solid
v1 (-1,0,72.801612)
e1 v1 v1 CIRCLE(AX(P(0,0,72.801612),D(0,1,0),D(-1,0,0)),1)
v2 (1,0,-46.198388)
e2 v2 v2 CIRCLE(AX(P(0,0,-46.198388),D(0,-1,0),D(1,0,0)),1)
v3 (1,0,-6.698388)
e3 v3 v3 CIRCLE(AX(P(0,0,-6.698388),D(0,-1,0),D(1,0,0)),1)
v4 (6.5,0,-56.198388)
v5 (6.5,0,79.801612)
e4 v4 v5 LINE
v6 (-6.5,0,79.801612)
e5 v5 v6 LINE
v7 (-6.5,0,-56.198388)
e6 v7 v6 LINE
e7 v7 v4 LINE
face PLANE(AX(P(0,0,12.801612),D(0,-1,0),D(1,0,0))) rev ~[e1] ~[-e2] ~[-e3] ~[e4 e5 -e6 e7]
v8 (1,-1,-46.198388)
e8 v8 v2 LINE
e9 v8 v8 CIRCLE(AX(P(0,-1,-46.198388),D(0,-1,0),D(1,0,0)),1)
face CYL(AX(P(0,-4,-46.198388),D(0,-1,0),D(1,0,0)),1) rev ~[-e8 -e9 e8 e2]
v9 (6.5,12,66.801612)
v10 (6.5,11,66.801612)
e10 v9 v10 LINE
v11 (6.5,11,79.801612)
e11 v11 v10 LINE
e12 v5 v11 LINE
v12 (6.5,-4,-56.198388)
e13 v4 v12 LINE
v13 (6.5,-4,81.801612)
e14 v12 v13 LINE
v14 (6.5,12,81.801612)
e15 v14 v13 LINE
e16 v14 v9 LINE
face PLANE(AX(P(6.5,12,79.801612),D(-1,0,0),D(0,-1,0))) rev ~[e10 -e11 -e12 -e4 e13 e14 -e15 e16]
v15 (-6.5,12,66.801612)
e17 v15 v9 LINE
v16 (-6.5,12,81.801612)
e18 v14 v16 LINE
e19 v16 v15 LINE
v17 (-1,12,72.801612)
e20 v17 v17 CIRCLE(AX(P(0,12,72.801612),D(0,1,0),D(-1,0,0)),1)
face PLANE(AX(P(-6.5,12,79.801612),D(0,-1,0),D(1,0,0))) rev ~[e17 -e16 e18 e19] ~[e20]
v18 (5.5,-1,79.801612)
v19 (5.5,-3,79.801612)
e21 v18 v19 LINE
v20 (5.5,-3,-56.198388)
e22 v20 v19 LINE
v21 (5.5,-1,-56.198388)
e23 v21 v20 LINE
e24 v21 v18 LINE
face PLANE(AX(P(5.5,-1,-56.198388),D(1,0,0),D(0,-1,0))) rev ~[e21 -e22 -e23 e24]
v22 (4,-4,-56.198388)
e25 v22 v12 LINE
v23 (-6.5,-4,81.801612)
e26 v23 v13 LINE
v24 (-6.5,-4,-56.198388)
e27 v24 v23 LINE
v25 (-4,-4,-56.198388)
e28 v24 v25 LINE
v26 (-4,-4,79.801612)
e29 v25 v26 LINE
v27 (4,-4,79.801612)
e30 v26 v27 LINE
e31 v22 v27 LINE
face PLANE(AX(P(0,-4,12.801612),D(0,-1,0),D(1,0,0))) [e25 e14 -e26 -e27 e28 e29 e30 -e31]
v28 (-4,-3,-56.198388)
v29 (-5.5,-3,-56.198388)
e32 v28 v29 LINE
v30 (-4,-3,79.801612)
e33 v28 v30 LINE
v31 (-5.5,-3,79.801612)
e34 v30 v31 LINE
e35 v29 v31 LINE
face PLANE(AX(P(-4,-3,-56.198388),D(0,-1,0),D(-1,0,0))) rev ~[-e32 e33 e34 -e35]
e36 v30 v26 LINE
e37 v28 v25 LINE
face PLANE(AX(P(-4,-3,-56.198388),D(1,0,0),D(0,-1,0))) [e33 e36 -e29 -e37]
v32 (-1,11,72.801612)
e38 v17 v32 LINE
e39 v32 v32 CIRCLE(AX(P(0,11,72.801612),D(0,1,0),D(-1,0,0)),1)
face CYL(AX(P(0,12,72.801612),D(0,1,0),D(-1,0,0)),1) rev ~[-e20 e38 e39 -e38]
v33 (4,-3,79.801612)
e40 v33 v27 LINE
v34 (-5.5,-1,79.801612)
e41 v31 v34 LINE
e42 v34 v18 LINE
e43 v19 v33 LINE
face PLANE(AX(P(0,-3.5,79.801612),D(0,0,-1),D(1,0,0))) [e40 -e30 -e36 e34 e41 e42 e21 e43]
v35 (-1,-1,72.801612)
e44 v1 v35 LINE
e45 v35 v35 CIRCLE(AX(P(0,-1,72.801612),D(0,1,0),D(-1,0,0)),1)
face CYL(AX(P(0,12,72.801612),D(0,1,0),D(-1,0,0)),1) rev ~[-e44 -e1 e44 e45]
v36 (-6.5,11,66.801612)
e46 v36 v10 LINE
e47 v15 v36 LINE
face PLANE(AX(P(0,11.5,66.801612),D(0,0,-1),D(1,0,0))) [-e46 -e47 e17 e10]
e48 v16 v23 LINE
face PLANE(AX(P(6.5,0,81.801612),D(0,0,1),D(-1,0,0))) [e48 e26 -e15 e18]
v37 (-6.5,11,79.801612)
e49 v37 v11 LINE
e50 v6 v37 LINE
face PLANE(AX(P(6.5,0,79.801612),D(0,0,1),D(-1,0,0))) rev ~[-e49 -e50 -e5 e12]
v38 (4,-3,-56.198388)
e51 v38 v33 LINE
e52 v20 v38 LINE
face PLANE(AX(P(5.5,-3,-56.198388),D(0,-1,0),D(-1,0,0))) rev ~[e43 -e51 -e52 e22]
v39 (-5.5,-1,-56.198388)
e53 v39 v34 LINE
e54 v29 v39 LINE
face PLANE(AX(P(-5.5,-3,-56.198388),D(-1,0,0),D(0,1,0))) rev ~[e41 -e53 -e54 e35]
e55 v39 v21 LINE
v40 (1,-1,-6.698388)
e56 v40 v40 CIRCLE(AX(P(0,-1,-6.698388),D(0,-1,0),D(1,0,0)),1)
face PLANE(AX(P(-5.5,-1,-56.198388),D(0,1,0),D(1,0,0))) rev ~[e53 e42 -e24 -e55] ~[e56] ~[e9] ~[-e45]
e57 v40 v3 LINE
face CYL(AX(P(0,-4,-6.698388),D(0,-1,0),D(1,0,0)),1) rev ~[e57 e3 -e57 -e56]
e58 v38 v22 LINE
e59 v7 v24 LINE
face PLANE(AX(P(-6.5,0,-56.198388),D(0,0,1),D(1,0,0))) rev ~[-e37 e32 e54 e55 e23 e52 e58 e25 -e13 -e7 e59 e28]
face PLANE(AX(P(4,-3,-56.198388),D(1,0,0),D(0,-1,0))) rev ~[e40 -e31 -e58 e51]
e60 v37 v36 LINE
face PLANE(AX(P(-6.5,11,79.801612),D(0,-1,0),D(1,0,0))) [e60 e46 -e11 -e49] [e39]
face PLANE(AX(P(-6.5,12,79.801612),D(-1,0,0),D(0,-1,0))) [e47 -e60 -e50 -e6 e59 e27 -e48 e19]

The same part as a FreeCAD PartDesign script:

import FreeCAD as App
import Part
import Sketcher
Q = App.Units.Quantity

doc = App.newDocument("Part")
body = doc.addObject("PartDesign::Body", "Body")

sketch1 = body.newObject("Sketcher::SketchObject", "Sketch")
sketch1.AttachmentSupport = (doc.getObject("XZ_Plane"), [""])
sketch1.MapMode = "FlatFace"
sketch1.addGeometry(Part.LineSegment(App.Vector(-6, 82, 0), App.Vector(-6, -56, 0)), False)
sketch1.addGeometry(Part.LineSegment(App.Vector(-6, -56, 0), App.Vector(6, -56, 0)), False)
sketch1.addGeometry(Part.LineSegment(App.Vector(6, -56, 0), App.Vector(6, 82, 0)), False)
sketch1.addGeometry(Part.LineSegment(App.Vector(6, 82, 0), App.Vector(-6, 82, 0)), False)
sketch1.addConstraint(Sketcher.Constraint("Coincident", 0, 2, 1, 1))
sketch1.addConstraint(Sketcher.Constraint("Coincident", 1, 2, 2, 1))
sketch1.addConstraint(Sketcher.Constraint("Coincident", 2, 2, 3, 1))
sketch1.addConstraint(Sketcher.Constraint("Coincident", 3, 2, 0, 1))
sketch1.addConstraint(Sketcher.Constraint("Vertical", 0))
sketch1.addConstraint(Sketcher.Constraint("Horizontal", 1))
sketch1.addConstraint(Sketcher.Constraint("Vertical", 2))
sketch1.addConstraint(Sketcher.Constraint("Horizontal", 3))
sketch1.addConstraint(Sketcher.Constraint("DistanceX", 1, 1, 1, 2, Q("13 mm")))
sketch1.addConstraint(Sketcher.Constraint("DistanceY", 0, 2, 0, 1, Q("138 mm")))
sketch1.addConstraint(Sketcher.Constraint("DistanceX", 0, 2, -1, 1, Q("6.5 mm")))
sketch1.addConstraint(Sketcher.Constraint("DistanceY", 0, 2, -1, 1, Q("56.198388 mm")))
pad1 = body.newObject("PartDesign::Pad", "Pad")
pad1.Profile = sketch1
pad1.Length = 4

sketch2 = body.newObject("Sketcher::SketchObject", "Sketch001")
sketch2.AttachmentSupport = (doc.getObject("XY_Plane"), [""])
sketch2.MapMode = "FlatFace"
sketch2.AttachmentOffset = App.Placement(App.Vector(0, 0, -56.198388), App.Rotation())
sketch2.addGeometry(Part.LineSegment(App.Vector(-4, -4, 0), App.Vector(-4, -3, 0)), False)
sketch2.addGeometry(Part.LineSegment(App.Vector(-4, -3, 0), App.Vector(-5.5, -3, 0)), False)
sketch2.addGeometry(Part.LineSegment(App.Vector(-5.5, -3, 0), App.Vector(-5.5, -1, 0)), False)
sketch2.addGeometry(Part.LineSegment(App.Vector(-5.5, -1, 0), App.Vector(5.5, -1, 0)), False)
sketch2.addGeometry(Part.LineSegment(App.Vector(5.5, -1, 0), App.Vector(5.5, -3, 0)), False)
sketch2.addGeometry(Part.LineSegment(App.Vector(5.5, -3, 0), App.Vector(4, -3, 0)), False)
sketch2.addGeometry(Part.LineSegment(App.Vector(4, -3, 0), App.Vector(4, -4, 0)), False)
sketch2.addGeometry(Part.LineSegment(App.Vector(4, -4, 0), App.Vector(-4, -4, 0)), False)
sketch2.addConstraint(Sketcher.Constraint("Coincident", 0, 2, 1, 1))
sketch2.addConstraint(Sketcher.Constraint("Coincident", 1, 2, 2, 1))
sketch2.addConstraint(Sketcher.Constraint("Coincident", 2, 2, 3, 1))
sketch2.addConstraint(Sketcher.Constraint("Coincident", 3, 2, 4, 1))
sketch2.addConstraint(Sketcher.Constraint("Coincident", 4, 2, 5, 1))
sketch2.addConstraint(Sketcher.Constraint("Coincident", 5, 2, 6, 1))
sketch2.addConstraint(Sketcher.Constraint("Coincident", 6, 2, 7, 1))
sketch2.addConstraint(Sketcher.Constraint("Coincident", 7, 2, 0, 1))
sketch2.addConstraint(Sketcher.Constraint("Vertical", 0))
sketch2.addConstraint(Sketcher.Constraint("Horizontal", 1))
sketch2.addConstraint(Sketcher.Constraint("Vertical", 2))
sketch2.addConstraint(Sketcher.Constraint("Horizontal", 3))
sketch2.addConstraint(Sketcher.Constraint("Vertical", 4))
sketch2.addConstraint(Sketcher.Constraint("Horizontal", 5))
sketch2.addConstraint(Sketcher.Constraint("Vertical", 6))
sketch2.addConstraint(Sketcher.Constraint("Horizontal", 7))
sketch2.addConstraint(Sketcher.Constraint("Symmetric", 1, 2, 4, 2, -2))
sketch2.addConstraint(Sketcher.Constraint("Equal", 1, 5))
sketch2.addConstraint(Sketcher.Constraint("DistanceX", 3, 1, 3, 2, Q("11 mm")))
sketch2.addConstraint(Sketcher.Constraint("DistanceX", 7, 2, 7, 1, Q("8 mm")))
sketch2.addConstraint(Sketcher.Constraint("DistanceY", 0, 1, 0, 2, Q("1 mm")))
sketch2.addConstraint(Sketcher.Constraint("DistanceY", 2, 1, 2, 2, Q("2 mm")))
sketch2.addConstraint(Sketcher.Constraint("DistanceY", 0, 2, -1, 1, Q("3 mm")))
pocket1 = body.newObject("PartDesign::Pocket", "Pocket")
pocket1.Profile = sketch2
pocket1.Length = 136
pocket1.Reversed = True

sketch3 = body.newObject("Sketcher::SketchObject", "Sketch002")
sketch3.AttachmentSupport = (doc.getObject("XZ_Plane"), [""])
sketch3.MapMode = "FlatFace"
sketch3.AttachmentOffset = App.Placement(App.Vector(0, 0, 4), App.Rotation())
sketch3.addGeometry(Part.Circle(App.Vector(0, -46.2, 0), App.Vector(0, 0, 1), 1), False)
sketch3.addConstraint(Sketcher.Constraint("PointOnObject", 0, 3, -2))
sketch3.addConstraint(Sketcher.Constraint("Diameter", 0, Q("2 mm")))
sketch3.addConstraint(Sketcher.Constraint("DistanceY", 0, 3, -1, 1, Q("46.198388 mm")))
pocket2 = body.newObject("PartDesign::Pocket", "Pocket001")
pocket2.Profile = sketch3
pocket2.Type = "ThroughAll"

sketch4 = body.newObject("Sketcher::SketchObject", "Sketch003")
sketch4.AttachmentSupport = (doc.getObject("XZ_Plane"), [""])
sketch4.MapMode = "FlatFace"
sketch4.AttachmentOffset = App.Placement(App.Vector(0, 0, 4), App.Rotation())
sketch4.addGeometry(Part.Circle(App.Vector(0, -6.7, 0), App.Vector(0, 0, 1), 1), False)
sketch4.addConstraint(Sketcher.Constraint("PointOnObject", 0, 3, -2))
sketch4.addConstraint(Sketcher.Constraint("Diameter", 0, Q("2 mm")))
sketch4.addConstraint(Sketcher.Constraint("DistanceY", 0, 3, -1, 1, Q("6.698388 mm")))
pocket3 = body.newObject("PartDesign::Pocket", "Pocket002")
pocket3.Profile = sketch4
pocket3.Type = "ThroughAll"

sketch5 = body.newObject("Sketcher::SketchObject", "Sketch004")
sketch5.AttachmentSupport = (doc.getObject("XZ_Plane"), [""])
sketch5.MapMode = "FlatFace"
sketch5.addGeometry(Part.LineSegment(App.Vector(6.5, 81.8, 0), App.Vector(6.5, 79.8, 0)), False)
sketch5.addGeometry(Part.LineSegment(App.Vector(6.5, 79.8, 0), App.Vector(-6.5, 79.8, 0)), False)
sketch5.addGeometry(Part.LineSegment(App.Vector(-6.5, 79.8, 0), App.Vector(-6.5, 81.8, 0)), False)
sketch5.addGeometry(Part.LineSegment(App.Vector(-6.5, 81.8, 0), App.Vector(6.5, 81.8, 0)), False)
sketch5.addConstraint(Sketcher.Constraint("Coincident", 0, 2, 1, 1))
sketch5.addConstraint(Sketcher.Constraint("Coincident", 1, 2, 2, 1))
sketch5.addConstraint(Sketcher.Constraint("Coincident", 2, 2, 3, 1))
sketch5.addConstraint(Sketcher.Constraint("Coincident", 3, 2, 0, 1))
sketch5.addConstraint(Sketcher.Constraint("Vertical", 0))
sketch5.addConstraint(Sketcher.Constraint("Horizontal", 1))
sketch5.addConstraint(Sketcher.Constraint("Vertical", 2))
sketch5.addConstraint(Sketcher.Constraint("Horizontal", 3))
sketch5.addConstraint(Sketcher.Constraint("DistanceX", 1, 2, 1, 1, Q("13 mm")))
sketch5.addConstraint(Sketcher.Constraint("DistanceY", 0, 2, 0, 1, Q("2 mm")))
sketch5.addConstraint(Sketcher.Constraint("DistanceX", -1, 1, 0, 2, Q("6.5 mm")))
sketch5.addConstraint(Sketcher.Constraint("DistanceY", -1, 1, 0, 2, Q("79.801612 mm")))
pad2 = body.newObject("PartDesign::Pad", "Pad001")
pad2.Profile = sketch5
pad2.Length = 12
pad2.Reversed = True

sketch6 = body.newObject("Sketcher::SketchObject", "Sketch005")
sketch6.AttachmentSupport = (doc.getObject("XY_Plane"), [""])
sketch6.MapMode = "FlatFace"
sketch6.AttachmentOffset = App.Placement(App.Vector(0, 0, 79.801612), App.Rotation())
sketch6.addGeometry(Part.LineSegment(App.Vector(-6.5, 11, 0), App.Vector(-6.5, 12, 0)), False)
sketch6.addGeometry(Part.LineSegment(App.Vector(-6.5, 12, 0), App.Vector(6.5, 12, 0)), False)
sketch6.addGeometry(Part.LineSegment(App.Vector(6.5, 12, 0), App.Vector(6.5, 11, 0)), False)
sketch6.addGeometry(Part.LineSegment(App.Vector(6.5, 11, 0), App.Vector(-6.5, 11, 0)), False)
sketch6.addConstraint(Sketcher.Constraint("Coincident", 0, 2, 1, 1))
sketch6.addConstraint(Sketcher.Constraint("Coincident", 1, 2, 2, 1))
sketch6.addConstraint(Sketcher.Constraint("Coincident", 2, 2, 3, 1))
sketch6.addConstraint(Sketcher.Constraint("Coincident", 3, 2, 0, 1))
sketch6.addConstraint(Sketcher.Constraint("Vertical", 0))
sketch6.addConstraint(Sketcher.Constraint("Horizontal", 1))
sketch6.addConstraint(Sketcher.Constraint("Vertical", 2))
sketch6.addConstraint(Sketcher.Constraint("Horizontal", 3))
sketch6.addConstraint(Sketcher.Constraint("DistanceX", 1, 1, 1, 2, Q("13 mm")))
sketch6.addConstraint(Sketcher.Constraint("DistanceY", 0, 1, 0, 2, Q("1 mm")))
sketch6.addConstraint(Sketcher.Constraint("DistanceY", -1, 1, 0, 2, Q("12 mm")))
sketch6.addConstraint(Sketcher.Constraint("DistanceX", 0, 2, -1, 1, Q("6.5 mm")))
pad3 = body.newObject("PartDesign::Pad", "Pad002")
pad3.Profile = sketch6
pad3.Length = 13
pad3.Reversed = True

sketch7 = body.newObject("Sketcher::SketchObject", "Sketch006")
sketch7.AttachmentSupport = (doc.getObject("XZ_Plane"), [""])
sketch7.MapMode = "FlatFace"
sketch7.AttachmentOffset = App.Placement(App.Vector(0, 0, -12), App.Rotation())
sketch7.addGeometry(Part.Circle(App.Vector(0, 72.8, 0), App.Vector(0, 0, 1), 1), False)
sketch7.addConstraint(Sketcher.Constraint("PointOnObject", 0, 3, -2))
sketch7.addConstraint(Sketcher.Constraint("Diameter", 0, Q("2 mm")))
sketch7.addConstraint(Sketcher.Constraint("DistanceY", -1, 1, 0, 3, Q("72.801612 mm")))
pocket4 = body.newObject("PartDesign::Pocket", "Pocket003")
pocket4.Profile = sketch7
pocket4.Type = "ThroughAll"
pocket4.Reversed = True

doc.recompute()
